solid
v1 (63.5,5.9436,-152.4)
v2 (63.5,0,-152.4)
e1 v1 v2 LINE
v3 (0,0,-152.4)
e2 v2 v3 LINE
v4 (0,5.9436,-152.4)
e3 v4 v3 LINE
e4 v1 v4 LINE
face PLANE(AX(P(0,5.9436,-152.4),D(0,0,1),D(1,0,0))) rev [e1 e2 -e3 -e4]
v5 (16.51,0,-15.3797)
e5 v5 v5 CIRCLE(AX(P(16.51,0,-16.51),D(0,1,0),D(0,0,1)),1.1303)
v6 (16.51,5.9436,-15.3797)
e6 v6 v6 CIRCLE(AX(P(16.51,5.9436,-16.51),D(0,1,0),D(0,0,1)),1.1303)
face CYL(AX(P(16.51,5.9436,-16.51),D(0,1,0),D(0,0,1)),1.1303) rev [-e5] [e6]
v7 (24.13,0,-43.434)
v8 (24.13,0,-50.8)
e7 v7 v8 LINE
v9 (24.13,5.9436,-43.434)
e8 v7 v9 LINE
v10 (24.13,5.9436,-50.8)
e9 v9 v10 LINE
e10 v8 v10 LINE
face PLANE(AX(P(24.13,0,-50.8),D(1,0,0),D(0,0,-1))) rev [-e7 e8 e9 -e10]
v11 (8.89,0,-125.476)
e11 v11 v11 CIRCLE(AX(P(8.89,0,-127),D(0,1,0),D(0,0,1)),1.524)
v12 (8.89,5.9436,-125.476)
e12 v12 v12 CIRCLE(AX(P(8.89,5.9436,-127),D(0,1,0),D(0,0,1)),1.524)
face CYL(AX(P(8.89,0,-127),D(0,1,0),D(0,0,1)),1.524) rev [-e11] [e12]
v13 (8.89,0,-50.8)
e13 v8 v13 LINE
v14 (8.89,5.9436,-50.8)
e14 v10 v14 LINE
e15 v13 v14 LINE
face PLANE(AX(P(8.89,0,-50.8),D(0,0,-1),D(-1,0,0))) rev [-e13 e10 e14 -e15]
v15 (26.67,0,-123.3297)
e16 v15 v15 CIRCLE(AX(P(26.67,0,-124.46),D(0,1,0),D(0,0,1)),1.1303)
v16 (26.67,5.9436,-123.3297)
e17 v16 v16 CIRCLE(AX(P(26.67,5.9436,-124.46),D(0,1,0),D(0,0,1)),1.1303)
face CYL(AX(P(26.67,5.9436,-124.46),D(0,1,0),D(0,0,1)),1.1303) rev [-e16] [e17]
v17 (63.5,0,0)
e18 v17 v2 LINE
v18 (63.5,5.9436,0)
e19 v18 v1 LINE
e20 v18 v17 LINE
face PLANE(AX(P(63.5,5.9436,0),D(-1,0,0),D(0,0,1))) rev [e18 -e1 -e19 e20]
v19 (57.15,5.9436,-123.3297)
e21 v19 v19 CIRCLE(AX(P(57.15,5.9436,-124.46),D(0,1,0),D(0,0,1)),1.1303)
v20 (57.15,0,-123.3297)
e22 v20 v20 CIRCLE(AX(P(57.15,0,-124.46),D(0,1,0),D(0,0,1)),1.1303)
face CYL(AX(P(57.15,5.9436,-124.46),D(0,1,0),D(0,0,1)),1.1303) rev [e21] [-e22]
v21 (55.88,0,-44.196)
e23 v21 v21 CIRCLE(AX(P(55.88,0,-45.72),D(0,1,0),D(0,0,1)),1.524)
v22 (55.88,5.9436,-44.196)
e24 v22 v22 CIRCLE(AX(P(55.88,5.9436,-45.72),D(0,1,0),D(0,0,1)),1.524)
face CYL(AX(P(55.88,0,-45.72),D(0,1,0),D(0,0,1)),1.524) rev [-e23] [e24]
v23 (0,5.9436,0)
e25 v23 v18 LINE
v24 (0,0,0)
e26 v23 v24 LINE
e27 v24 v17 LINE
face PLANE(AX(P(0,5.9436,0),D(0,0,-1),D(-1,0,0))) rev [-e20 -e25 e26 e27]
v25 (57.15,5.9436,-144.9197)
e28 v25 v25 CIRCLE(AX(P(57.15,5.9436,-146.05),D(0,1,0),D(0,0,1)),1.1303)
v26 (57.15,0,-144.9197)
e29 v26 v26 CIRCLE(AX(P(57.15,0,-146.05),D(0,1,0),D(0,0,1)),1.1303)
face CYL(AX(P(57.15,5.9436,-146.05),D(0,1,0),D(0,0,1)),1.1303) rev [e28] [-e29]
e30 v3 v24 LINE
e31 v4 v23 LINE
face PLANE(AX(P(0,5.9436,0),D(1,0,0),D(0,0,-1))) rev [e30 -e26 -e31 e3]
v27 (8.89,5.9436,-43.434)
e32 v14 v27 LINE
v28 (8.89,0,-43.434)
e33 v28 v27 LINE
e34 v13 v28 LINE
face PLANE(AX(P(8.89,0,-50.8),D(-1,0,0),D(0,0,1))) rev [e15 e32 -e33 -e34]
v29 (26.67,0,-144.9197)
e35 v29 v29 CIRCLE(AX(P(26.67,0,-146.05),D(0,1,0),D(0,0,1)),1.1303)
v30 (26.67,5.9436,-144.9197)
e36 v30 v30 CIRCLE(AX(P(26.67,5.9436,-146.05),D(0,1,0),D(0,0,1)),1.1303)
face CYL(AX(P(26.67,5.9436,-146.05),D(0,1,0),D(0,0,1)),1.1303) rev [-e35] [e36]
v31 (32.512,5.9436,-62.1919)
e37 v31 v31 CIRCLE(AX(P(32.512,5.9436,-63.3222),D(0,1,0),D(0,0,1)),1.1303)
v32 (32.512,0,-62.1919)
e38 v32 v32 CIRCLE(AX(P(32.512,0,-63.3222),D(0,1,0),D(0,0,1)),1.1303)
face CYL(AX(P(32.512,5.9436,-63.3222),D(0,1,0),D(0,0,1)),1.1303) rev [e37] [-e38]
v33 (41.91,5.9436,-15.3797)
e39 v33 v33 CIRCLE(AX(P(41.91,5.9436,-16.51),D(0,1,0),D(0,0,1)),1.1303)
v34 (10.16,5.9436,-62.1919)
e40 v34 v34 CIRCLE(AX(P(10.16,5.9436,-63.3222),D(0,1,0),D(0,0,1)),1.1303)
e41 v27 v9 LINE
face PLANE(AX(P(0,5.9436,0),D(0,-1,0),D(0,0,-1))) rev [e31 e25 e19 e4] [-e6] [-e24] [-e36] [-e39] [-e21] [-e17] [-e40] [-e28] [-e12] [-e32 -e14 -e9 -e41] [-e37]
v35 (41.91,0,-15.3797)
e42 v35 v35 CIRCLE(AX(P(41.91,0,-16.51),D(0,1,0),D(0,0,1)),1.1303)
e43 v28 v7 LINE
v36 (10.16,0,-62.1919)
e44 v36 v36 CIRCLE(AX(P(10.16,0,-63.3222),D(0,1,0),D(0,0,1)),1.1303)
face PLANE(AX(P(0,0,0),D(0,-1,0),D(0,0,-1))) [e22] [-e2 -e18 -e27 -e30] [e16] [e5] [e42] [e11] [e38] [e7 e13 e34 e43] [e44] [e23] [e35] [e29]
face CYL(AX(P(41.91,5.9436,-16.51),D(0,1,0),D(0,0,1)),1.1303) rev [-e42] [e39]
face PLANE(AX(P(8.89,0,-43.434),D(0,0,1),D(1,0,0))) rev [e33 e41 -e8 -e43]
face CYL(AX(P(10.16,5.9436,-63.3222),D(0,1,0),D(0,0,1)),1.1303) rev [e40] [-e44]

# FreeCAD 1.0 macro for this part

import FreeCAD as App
import Part
import Sketcher
Q = App.Units.Quantity

doc = App.newDocument("Part")
body = doc.addObject("PartDesign::Body", "Body")

# Sketch on XZ plane
sketch1 = body.newObject("Sketcher::SketchObject", "Sketch")
sketch1.AttachmentSupport = (doc.getObject("XZ_Plane"), [""])
sketch1.MapMode = "FlatFace"
sketch1.addGeometry([
    Part.LineSegment(App.Vector(0, -152, 0), App.Vector(0, 0, 0)),
    Part.LineSegment(App.Vector(0, 0, 0), App.Vector(64, 0, 0)),
    Part.LineSegment(App.Vector(64, 0, 0), App.Vector(64, -152, 0)),
    Part.LineSegment(App.Vector(64, -152, 0), App.Vector(0, -152, 0)),
], False)
sketch1.addConstraint([
    Sketcher.Constraint("Coincident", 0, 2, 1, 1),
    Sketcher.Constraint("Coincident", 1, 2, 2, 1),
    Sketcher.Constraint("Coincident", 2, 2, 3, 1),
    Sketcher.Constraint("Coincident", 3, 2, 0, 1),
    Sketcher.Constraint("Vertical", 0),
    Sketcher.Constraint("Horizontal", 1),
    Sketcher.Constraint("Vertical", 2),
    Sketcher.Constraint("Horizontal", 3),
    Sketcher.Constraint("Coincident", 0, 2, -1, 1),
    Sketcher.Constraint("DistanceY", 0, 1, 0, 2, Q("6 in")),
    Sketcher.Constraint("DistanceX", 1, 1, 1, 2, Q("2.5 in")),
])
pad1 = body.newObject("PartDesign::Pad", "Pad")
pad1.Profile = sketch1
pad1.Length = Q("0.234 in")
pad1.Reversed = True

# Sketch on XZ plane
sketch2 = body.newObject("Sketcher::SketchObject", "Sketch001")
sketch2.AttachmentSupport = (doc.getObject("XZ_Plane"), [""])
sketch2.MapMode = "FlatFace"
sketch2.AttachmentOffset = App.Placement(App.Vector(0, 0, -0.234 * 25.4), App.Rotation())
sketch2.addGeometry([
    Part.LineSegment(App.Vector(9, -51, 0), App.Vector(9, -43, 0)),
    Part.LineSegment(App.Vector(9, -43, 0), App.Vector(24, -43, 0)),
    Part.LineSegment(App.Vector(24, -43, 0), App.Vector(24, -51, 0)),
    Part.LineSegment(App.Vector(24, -51, 0), App.Vector(9, -51, 0)),
], False)
sketch2.addConstraint([
    Sketcher.Constraint("Coincident", 0, 2, 1, 1),
    Sketcher.Constraint("Coincident", 1, 2, 2, 1),
    Sketcher.Constraint("Coincident", 2, 2, 3, 1),
    Sketcher.Constraint("Coincident", 3, 2, 0, 1),
    Sketcher.Constraint("Vertical", 0),
    Sketcher.Constraint("Horizontal", 1),
    Sketcher.Constraint("Vertical", 2),
    Sketcher.Constraint("Horizontal", 3),
    Sketcher.Constraint("DistanceX", 1, 1, 1, 2, Q("0.6 in")),
    Sketcher.Constraint("DistanceY", 2, 2, -1, 1, Q("2 in")),
    Sketcher.Constraint("DistanceY", 0, 1, 0, 2, Q("0.29 in")),
    Sketcher.Constraint("DistanceX", -1, 1, 0, 2, Q("0.35 in")),
])
pocket1 = body.newObject("PartDesign::Pocket", "Pocket")
pocket1.Profile = sketch2
pocket1.Type = "ThroughAll"
pocket1.Reversed = True

# Sketch on XZ plane
sketch3 = body.newObject("Sketcher::SketchObject", "Sketch002")
sketch3.AttachmentSupport = (doc.getObject("XZ_Plane"), [""])
sketch3.MapMode = "FlatFace"
sketch3.AttachmentOffset = App.Placement(App.Vector(0, 0, -0.234 * 25.4), App.Rotation())
sketch3.addGeometry([
    Part.Circle(App.Vector(57.1, -146.1, 0), App.Vector(0, 0, 1), 1.1),
    Part.Circle(App.Vector(57.1, -124.5, 0), App.Vector(0, 0, 1), 1.1),
    Part.Circle(App.Vector(26.7, -124.5, 0), App.Vector(0, 0, 1), 1.1),
    Part.Circle(App.Vector(26.7, -146.1, 0), App.Vector(0, 0, 1), 1.1),
], False)
sketch3.addConstraint([
    Sketcher.Constraint("Equal", 0, 1),
    Sketcher.Constraint("Equal", 1, 2),
    Sketcher.Constraint("Equal", 2, 3),
    Sketcher.Constraint("Horizontal", 1, 3, 2, 3),
    Sketcher.Constraint("Horizontal", 0, 3, 3, 3),
    Sketcher.Constraint("Vertical", 0, 3, 1, 3),
    Sketcher.Constraint("Vertical", 2, 3, 3, 3),
    Sketcher.Constraint("Diameter", 0, Q("0.089 in")),
    Sketcher.Constraint("DistanceY", 1, 3, -1, 1, Q("4.9 in")),
    Sketcher.Constraint("DistanceX", 2, 3, 1, 3, Q("1.2 in")),
    Sketcher.Constraint("DistanceX", -1, 1, 0, 3, Q("2.25 in")),
    Sketcher.Constraint("DistanceY", 0, 3, -1, 1, Q("5.75 in")),
])
doc.recompute()
hole = body.newObject("PartDesign::Hole", "Hole")
hole.Profile = sketch3
hole.ThreadType = "None"
hole.Diameter = Q("0.089 in")
hole.DepthType = "ThroughAll"
hole.Reversed = True

# Sketch on XZ plane
sketch4 = body.newObject("Sketcher::SketchObject", "Sketch003")
sketch4.AttachmentSupport = (doc.getObject("XZ_Plane"), [""])
sketch4.MapMode = "FlatFace"
sketch4.AttachmentOffset = App.Placement(App.Vector(0, 0, -0.234 * 25.4), App.Rotation())
sketch4.addGeometry([
    Part.Circle(App.Vector(32.5, -63.3, 0), App.Vector(0, 0, 1), 1.1),
    Part.Circle(App.Vector(10.2, -63.3, 0), App.Vector(0, 0, 1), 1.1),
], False)
sketch4.addConstraint([
    Sketcher.Constraint("Equal", 0, 1),
    Sketcher.Constraint("Horizontal", 0, 3, 1, 3),
    Sketcher.Constraint("Diameter", 0, Q("0.089 in")),
    Sketcher.Constraint("DistanceX", -1, 1, 1, 3, Q("0.4 in")),
    Sketcher.Constraint("DistanceX", -1, 1, 0, 3, Q("1.28 in")),
    Sketcher.Constraint("DistanceY", 0, 3, -1, 1, Q("2.493 in")),
])
doc.recompute()
hole2 = body.newObject("PartDesign::Hole", "Hole001")
hole2.Profile = sketch4
hole2.ThreadType = "None"
hole2.Diameter = Q("0.089 in")
hole2.DepthType = "ThroughAll"
hole2.Reversed = True

# Sketch on XZ plane
sketch5 = body.newObject("Sketcher::SketchObject", "Sketch004")
sketch5.AttachmentSupport = (doc.getObject("XZ_Plane"), [""])
sketch5.MapMode = "FlatFace"
sketch5.AttachmentOffset = App.Placement(App.Vector(0, 0, -0.234 * 25.4), App.Rotation())
sketch5.addGeometry([
    Part.Circle(App.Vector(41.9, -16.5, 0), App.Vector(0, 0, 1), 1.1),
    Part.Circle(App.Vector(16.5, -16.5, 0), App.Vector(0, 0, 1), 1.1),
], False)
sketch5.addConstraint([
    Sketcher.Constraint("Equal", 0, 1),
    Sketcher.Constraint("Horizontal", 0, 3, 1, 3),
    Sketcher.Constraint("Diameter", 0, Q("0.089 in")),
    Sketcher.Constraint("DistanceX", 1, 3, 0, 3, Q("1 in")),
    Sketcher.Constraint("DistanceX", -1, 1, 0, 3, Q("1.65 in")),
    Sketcher.Constraint("DistanceY", 0, 3, -1, 1, Q("0.65 in")),
])
doc.recompute()
hole3 = body.newObject("PartDesign::Hole", "Hole002")
hole3.Profile = sketch5
hole3.ThreadType = "None"
hole3.Diameter = Q("0.089 in")
hole3.DepthType = "ThroughAll"
hole3.Reversed = True

# Sketch on XZ plane
sketch6 = body.newObject("Sketcher::SketchObject", "Sketch005")
sketch6.AttachmentSupport = (doc.getObject("XZ_Plane"), [""])
sketch6.MapMode = "FlatFace"
sketch6.AttachmentOffset = App.Placement(App.Vector(0, 0, -0.234 * 25.4), App.Rotation())
sketch6.addGeometry([
    Part.Circle(App.Vector(8.9, -127, 0), App.Vector(0, 0, 1), 1.5),
    Part.Circle(App.Vector(55.9, -45.7, 0), App.Vector(0, 0, 1), 1.5),
], False)
sketch6.addConstraint([
    Sketcher.Constraint("Equal", 0, 1),
    Sketcher.Constraint("Diameter", 0, Q("0.12 in")),
    Sketcher.Constraint("DistanceY", 0, 3, -1, 1, Q("5 in")),
    Sketcher.Constraint("DistanceX", -1, 1, 1, 3, Q("2.2 in")),
    Sketcher.Constraint("DistanceY", 1, 3, -1, 1, Q("1.8 in")),
    Sketcher.Constraint("DistanceX", -1, 1, 0, 3, Q("0.35 in")),
])
pocket2 = body.newObject("PartDesign::Pocket", "Pocket001")
pocket2.Profile = sketch6
pocket2.Type = "ThroughAll"
pocket2.Reversed = True

doc.recompute()
